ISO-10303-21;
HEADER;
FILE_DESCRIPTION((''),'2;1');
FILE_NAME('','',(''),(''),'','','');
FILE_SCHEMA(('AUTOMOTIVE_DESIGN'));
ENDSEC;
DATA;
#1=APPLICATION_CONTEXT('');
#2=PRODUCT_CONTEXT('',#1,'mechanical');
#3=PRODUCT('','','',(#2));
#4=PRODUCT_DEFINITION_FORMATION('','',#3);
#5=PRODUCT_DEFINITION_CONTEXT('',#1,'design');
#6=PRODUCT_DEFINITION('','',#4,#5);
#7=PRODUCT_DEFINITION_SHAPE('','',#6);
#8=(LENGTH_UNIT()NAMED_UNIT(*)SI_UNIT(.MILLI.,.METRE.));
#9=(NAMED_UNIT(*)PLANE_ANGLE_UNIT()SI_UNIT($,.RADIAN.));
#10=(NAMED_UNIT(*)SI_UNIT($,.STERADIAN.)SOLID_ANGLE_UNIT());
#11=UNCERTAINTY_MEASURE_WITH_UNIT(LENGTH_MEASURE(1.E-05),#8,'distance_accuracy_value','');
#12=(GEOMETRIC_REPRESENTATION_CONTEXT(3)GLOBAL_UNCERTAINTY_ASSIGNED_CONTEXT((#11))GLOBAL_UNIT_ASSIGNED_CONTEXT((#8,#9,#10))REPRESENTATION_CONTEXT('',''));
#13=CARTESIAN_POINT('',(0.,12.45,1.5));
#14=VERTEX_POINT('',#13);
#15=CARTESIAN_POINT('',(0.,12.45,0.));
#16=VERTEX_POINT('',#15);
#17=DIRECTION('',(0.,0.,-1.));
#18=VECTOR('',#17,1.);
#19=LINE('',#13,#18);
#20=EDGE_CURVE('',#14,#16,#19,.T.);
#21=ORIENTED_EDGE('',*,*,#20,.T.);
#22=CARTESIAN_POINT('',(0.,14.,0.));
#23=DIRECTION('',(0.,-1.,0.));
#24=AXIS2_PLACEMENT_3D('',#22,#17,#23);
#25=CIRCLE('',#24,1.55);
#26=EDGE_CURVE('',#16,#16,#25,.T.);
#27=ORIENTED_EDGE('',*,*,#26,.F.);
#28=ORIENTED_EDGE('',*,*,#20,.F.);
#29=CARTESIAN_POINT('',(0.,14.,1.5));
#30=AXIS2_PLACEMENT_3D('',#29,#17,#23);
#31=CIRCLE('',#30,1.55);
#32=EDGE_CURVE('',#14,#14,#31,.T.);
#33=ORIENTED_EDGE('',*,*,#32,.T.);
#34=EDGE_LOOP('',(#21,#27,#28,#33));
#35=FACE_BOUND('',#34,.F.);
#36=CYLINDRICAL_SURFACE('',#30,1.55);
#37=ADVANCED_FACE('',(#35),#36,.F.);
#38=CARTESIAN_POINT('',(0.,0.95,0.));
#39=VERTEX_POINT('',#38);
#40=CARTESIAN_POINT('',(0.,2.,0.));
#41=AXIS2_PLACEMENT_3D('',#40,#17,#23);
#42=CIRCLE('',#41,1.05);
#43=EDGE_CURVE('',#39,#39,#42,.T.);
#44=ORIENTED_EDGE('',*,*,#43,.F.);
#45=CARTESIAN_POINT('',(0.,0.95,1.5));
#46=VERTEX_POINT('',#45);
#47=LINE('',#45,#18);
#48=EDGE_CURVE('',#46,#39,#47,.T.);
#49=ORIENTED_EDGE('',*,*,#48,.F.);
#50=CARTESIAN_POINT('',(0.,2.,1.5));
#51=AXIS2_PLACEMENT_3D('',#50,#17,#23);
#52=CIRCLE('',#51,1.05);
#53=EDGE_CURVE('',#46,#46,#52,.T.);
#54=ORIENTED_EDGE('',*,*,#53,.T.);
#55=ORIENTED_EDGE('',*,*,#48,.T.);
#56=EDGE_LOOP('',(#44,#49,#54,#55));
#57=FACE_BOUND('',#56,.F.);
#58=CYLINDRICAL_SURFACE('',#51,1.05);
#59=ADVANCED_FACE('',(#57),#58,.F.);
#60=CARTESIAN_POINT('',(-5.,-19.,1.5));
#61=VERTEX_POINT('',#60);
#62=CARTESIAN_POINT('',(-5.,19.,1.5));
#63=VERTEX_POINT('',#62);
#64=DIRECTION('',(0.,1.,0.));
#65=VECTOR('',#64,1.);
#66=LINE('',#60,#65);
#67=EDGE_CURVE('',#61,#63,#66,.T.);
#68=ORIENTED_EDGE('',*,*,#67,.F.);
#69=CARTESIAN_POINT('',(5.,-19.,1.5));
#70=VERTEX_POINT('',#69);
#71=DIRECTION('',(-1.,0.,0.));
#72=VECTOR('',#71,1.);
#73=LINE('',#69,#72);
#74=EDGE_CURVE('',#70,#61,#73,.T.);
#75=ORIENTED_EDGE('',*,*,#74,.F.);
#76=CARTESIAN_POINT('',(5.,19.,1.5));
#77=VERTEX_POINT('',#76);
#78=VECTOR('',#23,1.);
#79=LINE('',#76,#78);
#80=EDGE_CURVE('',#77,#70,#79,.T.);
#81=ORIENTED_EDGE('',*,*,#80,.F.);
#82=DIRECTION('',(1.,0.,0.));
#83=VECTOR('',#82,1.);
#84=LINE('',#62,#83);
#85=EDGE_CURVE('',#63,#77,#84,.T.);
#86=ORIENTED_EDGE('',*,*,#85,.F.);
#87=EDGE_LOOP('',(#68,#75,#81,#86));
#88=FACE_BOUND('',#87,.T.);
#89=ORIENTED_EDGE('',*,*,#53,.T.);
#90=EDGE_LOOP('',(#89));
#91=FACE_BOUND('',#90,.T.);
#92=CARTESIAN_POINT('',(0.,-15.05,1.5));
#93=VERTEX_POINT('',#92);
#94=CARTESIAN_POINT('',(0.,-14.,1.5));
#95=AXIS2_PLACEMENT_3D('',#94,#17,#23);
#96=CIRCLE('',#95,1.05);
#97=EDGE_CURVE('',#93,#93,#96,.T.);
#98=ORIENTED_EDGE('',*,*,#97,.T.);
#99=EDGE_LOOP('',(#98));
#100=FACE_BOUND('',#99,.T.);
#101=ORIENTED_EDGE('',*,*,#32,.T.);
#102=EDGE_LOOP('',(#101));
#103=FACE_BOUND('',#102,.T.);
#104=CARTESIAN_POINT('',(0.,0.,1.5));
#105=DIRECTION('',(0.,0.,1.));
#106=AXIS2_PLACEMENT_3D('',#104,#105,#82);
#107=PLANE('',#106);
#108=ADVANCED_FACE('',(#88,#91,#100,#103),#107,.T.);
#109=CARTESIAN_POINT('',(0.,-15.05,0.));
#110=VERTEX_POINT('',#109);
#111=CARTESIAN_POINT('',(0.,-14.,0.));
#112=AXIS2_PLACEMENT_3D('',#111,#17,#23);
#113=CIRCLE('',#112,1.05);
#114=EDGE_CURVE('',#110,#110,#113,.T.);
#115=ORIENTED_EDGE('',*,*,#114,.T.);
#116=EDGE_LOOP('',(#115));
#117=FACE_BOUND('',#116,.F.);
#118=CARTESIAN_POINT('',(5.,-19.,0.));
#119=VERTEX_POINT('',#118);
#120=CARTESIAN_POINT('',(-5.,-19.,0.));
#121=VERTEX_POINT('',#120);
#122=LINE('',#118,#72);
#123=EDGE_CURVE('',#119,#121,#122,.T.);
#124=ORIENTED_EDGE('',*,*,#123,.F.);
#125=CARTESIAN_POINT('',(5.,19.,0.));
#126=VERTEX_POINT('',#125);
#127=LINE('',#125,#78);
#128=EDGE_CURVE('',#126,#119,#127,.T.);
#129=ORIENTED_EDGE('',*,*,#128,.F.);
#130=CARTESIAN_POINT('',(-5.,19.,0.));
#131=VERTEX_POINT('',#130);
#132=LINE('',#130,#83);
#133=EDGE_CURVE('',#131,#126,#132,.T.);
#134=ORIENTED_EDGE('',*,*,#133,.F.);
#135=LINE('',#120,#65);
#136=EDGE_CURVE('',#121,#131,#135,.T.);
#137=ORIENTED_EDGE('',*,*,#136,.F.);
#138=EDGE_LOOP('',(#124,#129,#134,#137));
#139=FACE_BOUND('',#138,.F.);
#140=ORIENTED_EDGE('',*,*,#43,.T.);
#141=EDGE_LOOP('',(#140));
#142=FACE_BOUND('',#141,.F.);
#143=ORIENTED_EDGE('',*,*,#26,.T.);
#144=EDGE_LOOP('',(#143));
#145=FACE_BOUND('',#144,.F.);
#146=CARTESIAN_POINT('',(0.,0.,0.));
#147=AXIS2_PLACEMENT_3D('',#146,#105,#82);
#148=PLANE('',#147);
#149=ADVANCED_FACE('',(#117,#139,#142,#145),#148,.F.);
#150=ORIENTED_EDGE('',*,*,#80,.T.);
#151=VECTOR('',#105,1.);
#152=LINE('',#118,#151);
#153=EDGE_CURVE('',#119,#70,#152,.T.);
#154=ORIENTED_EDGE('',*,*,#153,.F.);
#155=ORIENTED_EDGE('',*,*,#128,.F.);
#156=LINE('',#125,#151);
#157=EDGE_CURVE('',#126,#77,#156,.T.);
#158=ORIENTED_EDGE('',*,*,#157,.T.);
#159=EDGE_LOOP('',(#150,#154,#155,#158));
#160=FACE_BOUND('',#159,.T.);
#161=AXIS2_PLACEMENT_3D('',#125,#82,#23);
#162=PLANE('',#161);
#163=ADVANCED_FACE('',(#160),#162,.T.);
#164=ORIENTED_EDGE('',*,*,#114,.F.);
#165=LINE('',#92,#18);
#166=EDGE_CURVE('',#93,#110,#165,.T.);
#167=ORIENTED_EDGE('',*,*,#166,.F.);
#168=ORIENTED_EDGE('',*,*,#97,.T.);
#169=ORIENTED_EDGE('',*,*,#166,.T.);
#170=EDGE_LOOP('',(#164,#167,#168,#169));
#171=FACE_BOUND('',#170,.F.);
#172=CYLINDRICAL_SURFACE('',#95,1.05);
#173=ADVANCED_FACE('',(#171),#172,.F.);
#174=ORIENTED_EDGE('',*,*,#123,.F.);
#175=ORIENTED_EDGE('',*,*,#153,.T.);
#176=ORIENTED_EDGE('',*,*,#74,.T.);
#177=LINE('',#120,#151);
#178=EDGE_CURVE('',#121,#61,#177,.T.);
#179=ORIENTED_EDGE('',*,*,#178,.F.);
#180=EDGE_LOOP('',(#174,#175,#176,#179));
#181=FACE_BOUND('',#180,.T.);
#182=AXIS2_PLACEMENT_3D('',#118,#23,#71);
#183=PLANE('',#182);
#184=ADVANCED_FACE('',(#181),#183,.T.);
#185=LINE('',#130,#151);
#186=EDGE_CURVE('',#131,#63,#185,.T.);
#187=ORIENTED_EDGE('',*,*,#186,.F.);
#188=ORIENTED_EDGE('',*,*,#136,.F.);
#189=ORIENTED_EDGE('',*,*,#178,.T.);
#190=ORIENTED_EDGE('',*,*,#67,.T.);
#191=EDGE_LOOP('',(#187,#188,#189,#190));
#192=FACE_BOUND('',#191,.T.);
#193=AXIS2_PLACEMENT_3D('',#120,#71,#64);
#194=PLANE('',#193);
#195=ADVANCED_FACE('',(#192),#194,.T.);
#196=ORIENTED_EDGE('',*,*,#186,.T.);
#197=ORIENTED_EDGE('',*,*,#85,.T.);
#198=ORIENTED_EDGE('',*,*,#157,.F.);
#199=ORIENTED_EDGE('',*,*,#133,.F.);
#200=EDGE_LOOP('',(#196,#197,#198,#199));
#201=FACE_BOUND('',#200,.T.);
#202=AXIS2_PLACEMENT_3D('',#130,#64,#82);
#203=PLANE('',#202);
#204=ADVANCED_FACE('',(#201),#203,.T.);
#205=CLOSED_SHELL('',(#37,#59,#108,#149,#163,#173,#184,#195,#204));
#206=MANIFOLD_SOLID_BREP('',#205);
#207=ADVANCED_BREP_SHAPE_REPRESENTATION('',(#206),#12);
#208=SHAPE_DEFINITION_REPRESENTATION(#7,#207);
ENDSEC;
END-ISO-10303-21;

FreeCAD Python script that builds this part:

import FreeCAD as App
import Part
import Sketcher
from FreeCAD import Vector


def add_polygon(sketch, points):
    """Adds a closed chain of lines whose ends are joined by coincident constraints."""
    first, n = sketch.GeometryCount, len(points)
    for a, b in zip(points, points[1:] + points[:1]):
        sketch.addGeometry(Part.LineSegment(App.Vector(*a, 0), App.Vector(*b, 0)), False)
    for i in range(n):
        sketch.addConstraint(Sketcher.Constraint("Coincident", first + i, 2, first + (i + 1) % n, 1))

doc = App.newDocument("Part")
body = doc.addObject("PartDesign::Body", "Body")

# Sketch on XY plane
sketch1 = body.newObject("Sketcher::SketchObject", "Sketch")
sketch1.AttachmentSupport = (doc.getObject("XY_Plane"), [""])
sketch1.MapMode = "FlatFace"
add_polygon(sketch1, [(5, 19), (-5, 19), (-5, -19), (5, -19)])  # lines 0-3
sketch1.addConstraint([
    Sketcher.Constraint("Horizontal", 0),
    Sketcher.Constraint("Vertical", 1),
    Sketcher.Constraint("Horizontal", 2),
    Sketcher.Constraint("Vertical", 3),
    Sketcher.Constraint("Symmetric", 0, 2, 2, 2, -1, 1),
    Sketcher.Constraint("DistanceX", 0, 2, 0, 1, 10.0),
    Sketcher.Constraint("DistanceY", 1, 2, 1, 1, 38.0),
])
pad1 = body.newObject("PartDesign::Pad", "Pad")
pad1.Profile = sketch1
pad1.Length = 1.5

# Sketch on XY plane
sketch2 = body.newObject("Sketcher::SketchObject", "Sketch001")
sketch2.AttachmentSupport = (doc.getObject("XY_Plane"), [""])
sketch2.MapMode = "FlatFace"
sketch2.AttachmentOffset = App.Placement(Vector(0, 0, 1.5), App.Rotation())
sketch2.addGeometry([
    Part.Circle(Vector(0, -14, 0), Vector(0, 0, 1), 1.05),
    Part.Circle(Vector(0, 2, 0), Vector(0, 0, 1), 1.05),
], False)
sketch2.addConstraint([
    Sketcher.Constraint("Equal", 0, 1),
    Sketcher.Constraint("PointOnObject", 0, 3, -2),
    Sketcher.Constraint("PointOnObject", 1, 3, -2),
    Sketcher.Constraint("Diameter", 0, 2.1),
    Sketcher.Constraint("DistanceY", 0, 3, -1, 1, 14.0),
    Sketcher.Constraint("DistanceY", -1, 1, 1, 3, 2.0),
])
doc.recompute()
hole = body.newObject("PartDesign::Hole", "Hole")
hole.Profile = sketch2
hole.ThreadType = "None"
hole.Diameter = 2.1
hole.DepthType = "ThroughAll"

# Sketch on XY plane
sketch3 = body.newObject("Sketcher::SketchObject", "Sketch002")
sketch3.AttachmentSupport = (doc.getObject("XY_Plane"), [""])
sketch3.MapMode = "FlatFace"
sketch3.AttachmentOffset = App.Placement(Vector(0, 0, 1.5), App.Rotation())
sketch3.addGeometry(Part.Circle(Vector(0, 14, 0), Vector(0, 0, 1), 1.55), False)
sketch3.addConstraint([
    Sketcher.Constraint("PointOnObject", 0, 3, -2),
    Sketcher.Constraint("Diameter", 0, 3.1),
    Sketcher.Constraint("DistanceY", -1, 1, 0, 3, 14.0),
])
doc.recompute()
hole2 = body.newObject("PartDesign::Hole", "Hole001")
hole2.Profile = sketch3
hole2.ThreadType = "None"
hole2.Diameter = 3.1
hole2.DepthType = "ThroughAll"

doc.recompute()
